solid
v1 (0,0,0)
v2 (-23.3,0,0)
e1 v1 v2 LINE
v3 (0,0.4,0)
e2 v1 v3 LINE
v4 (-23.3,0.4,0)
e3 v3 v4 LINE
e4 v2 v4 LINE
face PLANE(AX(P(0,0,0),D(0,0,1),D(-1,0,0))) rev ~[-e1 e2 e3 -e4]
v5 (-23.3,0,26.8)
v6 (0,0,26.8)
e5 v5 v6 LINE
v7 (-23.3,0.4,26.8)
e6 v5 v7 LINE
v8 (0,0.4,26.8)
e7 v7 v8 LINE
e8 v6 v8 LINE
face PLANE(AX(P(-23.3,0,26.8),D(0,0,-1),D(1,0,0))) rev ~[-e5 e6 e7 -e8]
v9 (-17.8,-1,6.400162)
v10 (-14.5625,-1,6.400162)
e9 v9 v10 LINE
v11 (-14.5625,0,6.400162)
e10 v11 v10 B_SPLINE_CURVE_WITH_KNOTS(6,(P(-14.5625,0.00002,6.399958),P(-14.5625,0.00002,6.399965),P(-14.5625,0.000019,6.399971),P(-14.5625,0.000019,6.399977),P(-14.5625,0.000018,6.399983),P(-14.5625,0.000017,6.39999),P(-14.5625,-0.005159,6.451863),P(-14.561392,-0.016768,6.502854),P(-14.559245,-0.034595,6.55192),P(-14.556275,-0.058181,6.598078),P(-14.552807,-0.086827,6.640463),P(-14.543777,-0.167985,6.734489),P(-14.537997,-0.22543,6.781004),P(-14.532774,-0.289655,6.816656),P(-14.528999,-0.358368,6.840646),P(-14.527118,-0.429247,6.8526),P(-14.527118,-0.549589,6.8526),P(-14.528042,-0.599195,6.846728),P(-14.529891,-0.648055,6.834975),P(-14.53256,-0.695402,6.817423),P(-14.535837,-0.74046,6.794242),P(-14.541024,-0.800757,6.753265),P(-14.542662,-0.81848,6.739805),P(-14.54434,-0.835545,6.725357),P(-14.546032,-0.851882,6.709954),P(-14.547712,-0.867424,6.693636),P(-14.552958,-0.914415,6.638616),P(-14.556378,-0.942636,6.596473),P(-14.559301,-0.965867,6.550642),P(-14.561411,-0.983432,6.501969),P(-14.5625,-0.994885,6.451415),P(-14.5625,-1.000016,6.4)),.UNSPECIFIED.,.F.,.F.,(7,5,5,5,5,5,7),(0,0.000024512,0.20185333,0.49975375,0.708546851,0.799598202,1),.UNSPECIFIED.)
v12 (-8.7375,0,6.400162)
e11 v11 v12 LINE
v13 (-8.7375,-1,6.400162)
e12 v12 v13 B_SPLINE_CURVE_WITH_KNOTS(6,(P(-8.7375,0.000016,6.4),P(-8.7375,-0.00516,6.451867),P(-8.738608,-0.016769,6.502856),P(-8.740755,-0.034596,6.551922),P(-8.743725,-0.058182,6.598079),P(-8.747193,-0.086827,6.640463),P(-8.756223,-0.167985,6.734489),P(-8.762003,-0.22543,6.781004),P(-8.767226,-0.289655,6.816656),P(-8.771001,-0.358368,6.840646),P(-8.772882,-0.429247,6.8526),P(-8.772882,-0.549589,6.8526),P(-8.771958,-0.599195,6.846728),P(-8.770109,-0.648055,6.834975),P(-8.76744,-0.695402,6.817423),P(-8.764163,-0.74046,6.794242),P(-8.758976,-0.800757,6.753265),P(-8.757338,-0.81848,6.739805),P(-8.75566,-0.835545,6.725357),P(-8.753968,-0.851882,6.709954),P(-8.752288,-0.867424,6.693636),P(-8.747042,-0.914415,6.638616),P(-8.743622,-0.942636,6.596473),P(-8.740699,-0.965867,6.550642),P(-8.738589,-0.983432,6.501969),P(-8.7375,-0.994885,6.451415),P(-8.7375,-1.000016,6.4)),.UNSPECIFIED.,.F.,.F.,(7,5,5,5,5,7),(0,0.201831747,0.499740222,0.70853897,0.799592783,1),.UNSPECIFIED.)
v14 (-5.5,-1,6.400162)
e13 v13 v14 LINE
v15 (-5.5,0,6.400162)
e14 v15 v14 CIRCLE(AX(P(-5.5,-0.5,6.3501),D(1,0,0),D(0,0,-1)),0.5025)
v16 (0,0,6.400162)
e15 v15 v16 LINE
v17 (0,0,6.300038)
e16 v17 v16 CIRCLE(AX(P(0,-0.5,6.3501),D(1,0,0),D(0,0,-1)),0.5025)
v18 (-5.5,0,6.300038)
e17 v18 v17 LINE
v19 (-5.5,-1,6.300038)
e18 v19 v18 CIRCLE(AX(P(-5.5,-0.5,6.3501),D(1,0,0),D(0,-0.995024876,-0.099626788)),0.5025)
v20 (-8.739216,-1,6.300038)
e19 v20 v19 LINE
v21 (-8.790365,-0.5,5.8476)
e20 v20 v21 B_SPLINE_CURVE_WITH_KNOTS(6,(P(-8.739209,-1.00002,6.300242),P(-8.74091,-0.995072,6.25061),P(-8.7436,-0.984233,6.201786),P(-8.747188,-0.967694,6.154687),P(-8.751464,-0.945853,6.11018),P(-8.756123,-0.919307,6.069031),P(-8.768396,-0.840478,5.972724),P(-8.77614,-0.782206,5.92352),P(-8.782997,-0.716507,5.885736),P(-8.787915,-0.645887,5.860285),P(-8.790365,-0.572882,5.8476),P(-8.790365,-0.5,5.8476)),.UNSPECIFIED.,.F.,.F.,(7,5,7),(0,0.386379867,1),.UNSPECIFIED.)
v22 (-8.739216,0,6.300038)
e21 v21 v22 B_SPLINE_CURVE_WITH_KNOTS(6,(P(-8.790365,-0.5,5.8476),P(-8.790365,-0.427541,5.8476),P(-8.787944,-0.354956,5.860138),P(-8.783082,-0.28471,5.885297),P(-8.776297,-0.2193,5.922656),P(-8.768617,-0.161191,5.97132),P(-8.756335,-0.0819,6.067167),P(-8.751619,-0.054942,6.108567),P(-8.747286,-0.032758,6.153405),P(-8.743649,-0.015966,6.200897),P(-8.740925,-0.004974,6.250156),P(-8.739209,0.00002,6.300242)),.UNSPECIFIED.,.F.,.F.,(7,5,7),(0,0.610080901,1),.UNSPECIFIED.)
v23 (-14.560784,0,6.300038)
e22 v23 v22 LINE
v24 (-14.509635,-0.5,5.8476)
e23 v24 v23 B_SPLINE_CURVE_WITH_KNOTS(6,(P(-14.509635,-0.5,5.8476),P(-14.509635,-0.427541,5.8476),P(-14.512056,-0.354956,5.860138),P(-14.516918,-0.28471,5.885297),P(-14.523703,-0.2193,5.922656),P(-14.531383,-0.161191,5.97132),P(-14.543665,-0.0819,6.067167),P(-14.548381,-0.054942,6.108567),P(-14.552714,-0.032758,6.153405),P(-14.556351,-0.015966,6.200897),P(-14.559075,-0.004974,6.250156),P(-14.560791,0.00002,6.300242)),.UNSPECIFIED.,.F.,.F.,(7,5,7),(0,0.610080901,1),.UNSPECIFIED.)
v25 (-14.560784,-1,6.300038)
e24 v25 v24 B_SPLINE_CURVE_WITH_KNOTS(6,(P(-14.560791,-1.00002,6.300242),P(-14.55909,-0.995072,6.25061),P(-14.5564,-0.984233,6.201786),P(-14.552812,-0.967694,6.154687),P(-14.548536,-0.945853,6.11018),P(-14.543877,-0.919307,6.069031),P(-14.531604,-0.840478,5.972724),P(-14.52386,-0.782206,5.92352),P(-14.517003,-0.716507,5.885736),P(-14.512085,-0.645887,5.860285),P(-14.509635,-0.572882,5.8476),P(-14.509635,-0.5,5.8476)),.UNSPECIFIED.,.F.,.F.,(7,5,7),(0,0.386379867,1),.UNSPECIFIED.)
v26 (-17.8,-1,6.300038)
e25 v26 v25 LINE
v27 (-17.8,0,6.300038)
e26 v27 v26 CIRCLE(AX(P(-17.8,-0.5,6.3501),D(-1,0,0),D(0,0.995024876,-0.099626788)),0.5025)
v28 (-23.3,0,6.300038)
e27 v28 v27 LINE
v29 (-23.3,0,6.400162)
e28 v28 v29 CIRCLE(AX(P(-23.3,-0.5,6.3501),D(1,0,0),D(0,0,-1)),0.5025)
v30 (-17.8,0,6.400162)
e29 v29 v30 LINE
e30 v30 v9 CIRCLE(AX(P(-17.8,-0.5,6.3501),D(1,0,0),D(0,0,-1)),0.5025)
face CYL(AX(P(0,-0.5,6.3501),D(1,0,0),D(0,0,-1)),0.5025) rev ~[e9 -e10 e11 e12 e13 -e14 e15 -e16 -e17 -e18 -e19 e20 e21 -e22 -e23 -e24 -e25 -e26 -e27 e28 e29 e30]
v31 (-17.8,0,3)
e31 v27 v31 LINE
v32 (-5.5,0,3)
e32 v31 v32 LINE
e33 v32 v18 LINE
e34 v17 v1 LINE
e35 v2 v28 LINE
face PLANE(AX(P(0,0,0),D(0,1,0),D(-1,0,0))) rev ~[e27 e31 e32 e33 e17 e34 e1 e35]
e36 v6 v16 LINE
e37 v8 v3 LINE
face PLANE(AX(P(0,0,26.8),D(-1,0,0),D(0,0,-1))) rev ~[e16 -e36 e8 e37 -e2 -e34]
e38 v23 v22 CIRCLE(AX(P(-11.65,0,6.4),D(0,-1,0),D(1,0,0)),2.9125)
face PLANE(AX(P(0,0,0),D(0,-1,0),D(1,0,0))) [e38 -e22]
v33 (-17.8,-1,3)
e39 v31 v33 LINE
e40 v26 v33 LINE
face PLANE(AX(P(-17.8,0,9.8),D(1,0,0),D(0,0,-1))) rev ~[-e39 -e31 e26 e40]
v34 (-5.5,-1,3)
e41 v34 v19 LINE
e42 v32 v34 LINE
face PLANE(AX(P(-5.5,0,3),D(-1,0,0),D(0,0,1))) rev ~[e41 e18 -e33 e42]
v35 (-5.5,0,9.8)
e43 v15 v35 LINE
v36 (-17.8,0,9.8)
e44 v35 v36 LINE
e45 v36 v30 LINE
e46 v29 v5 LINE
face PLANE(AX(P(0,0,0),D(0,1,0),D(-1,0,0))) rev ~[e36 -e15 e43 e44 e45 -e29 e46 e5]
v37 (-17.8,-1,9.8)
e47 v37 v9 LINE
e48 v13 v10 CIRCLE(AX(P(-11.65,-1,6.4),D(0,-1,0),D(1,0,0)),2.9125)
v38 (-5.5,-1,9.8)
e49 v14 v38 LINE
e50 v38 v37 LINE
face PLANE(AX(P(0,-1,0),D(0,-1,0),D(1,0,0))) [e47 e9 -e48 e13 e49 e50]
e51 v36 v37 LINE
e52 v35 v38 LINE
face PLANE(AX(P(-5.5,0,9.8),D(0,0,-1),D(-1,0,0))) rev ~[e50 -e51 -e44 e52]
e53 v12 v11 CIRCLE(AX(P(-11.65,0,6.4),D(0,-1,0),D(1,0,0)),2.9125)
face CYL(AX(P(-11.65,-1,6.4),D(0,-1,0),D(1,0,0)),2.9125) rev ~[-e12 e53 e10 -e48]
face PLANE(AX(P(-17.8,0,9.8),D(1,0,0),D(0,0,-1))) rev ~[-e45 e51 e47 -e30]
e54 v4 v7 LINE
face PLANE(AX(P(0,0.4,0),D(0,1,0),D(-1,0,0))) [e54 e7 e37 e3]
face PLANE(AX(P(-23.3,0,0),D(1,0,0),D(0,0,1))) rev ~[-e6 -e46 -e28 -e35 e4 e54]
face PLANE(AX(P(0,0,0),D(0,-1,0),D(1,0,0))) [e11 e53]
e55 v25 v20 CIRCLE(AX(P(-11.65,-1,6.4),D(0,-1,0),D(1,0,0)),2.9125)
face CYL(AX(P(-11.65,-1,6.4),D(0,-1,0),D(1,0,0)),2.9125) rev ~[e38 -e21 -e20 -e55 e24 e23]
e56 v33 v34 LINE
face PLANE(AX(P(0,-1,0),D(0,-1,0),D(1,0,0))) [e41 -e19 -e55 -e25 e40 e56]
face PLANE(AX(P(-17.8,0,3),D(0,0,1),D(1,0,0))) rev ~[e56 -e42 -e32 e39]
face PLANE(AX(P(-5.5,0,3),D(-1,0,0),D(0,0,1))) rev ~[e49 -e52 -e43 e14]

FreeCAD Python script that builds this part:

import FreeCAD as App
import Part
import Sketcher

V = App.Vector
Q = App.Units.Quantity


def add_polygon(sketch, points):
    """Adds a closed chain of lines whose ends are joined by coincident constraints."""
    first, n = sketch.GeometryCount, len(points)
    for a, b in zip(points, points[1:] + points[:1]):
        sketch.addGeometry(Part.LineSegment(App.Vector(*a, 0), App.Vector(*b, 0)), False)
    for i in range(n):
        sketch.addConstraint(Sketcher.Constraint("Coincident", first + i, 2, first + (i + 1) % n, 1))

doc = App.newDocument("Part")
body = doc.addObject("PartDesign::Body", "Body")

# Sketch on XZ plane
sketch1 = body.newObject("Sketcher::SketchObject", "Sketch")
sketch1.AttachmentSupport = (doc.getObject("XZ_Plane"), [""])
sketch1.MapMode = "FlatFace"
add_polygon(sketch1, [(0, 27), (0, 0), (-23, 0), (-23, 27)])  # lines 0-3
sketch1.addConstraint([
    Sketcher.Constraint("Vertical", 0),
    Sketcher.Constraint("Horizontal", 1),
    Sketcher.Constraint("Vertical", 2),
    Sketcher.Constraint("Horizontal", 3),
    Sketcher.Constraint("Coincident", 0, 2, -1, 1),
    Sketcher.Constraint("DistanceX", 1, 2, 1, 1, Q("23.3 mm")),
    Sketcher.Constraint("DistanceY", 0, 2, 0, 1, Q("26.8 mm")),
])
pad1 = body.newObject("PartDesign::Pad", "Pad")
pad1.Profile = sketch1
pad1.Length = 0.4
pad1.Reversed = True

# Sketch on XZ plane
sketch2 = body.newObject("Sketcher::SketchObject", "Sketch001")
sketch2.AttachmentSupport = (doc.getObject("XZ_Plane"), [""])
sketch2.MapMode = "FlatFace"
add_polygon(sketch2, [(-18, 10), (-18, 3), (-6, 3), (-6, 10)])  # lines 0-3
sketch2.addConstraint([
    Sketcher.Constraint("Vertical", 0),
    Sketcher.Constraint("Horizontal", 1),
    Sketcher.Constraint("Vertical", 2),
    Sketcher.Constraint("Horizontal", 3),
    Sketcher.Constraint("DistanceY", -1, 1, 0, 2, Q("3 mm")),
    Sketcher.Constraint("DistanceX", 1, 2, -1, 1, Q("5.5 mm")),
    Sketcher.Constraint("DistanceX", 1, 1, 1, 2, Q("12.3 mm")),
    Sketcher.Constraint("DistanceY", 0, 2, 0, 1, Q("6.8 mm")),
])
pad2 = body.newObject("PartDesign::Pad", "Pad001")
pad2.Profile = sketch2
pad2.Length = 1

# Sketch on XZ plane
sketch3 = body.newObject("Sketcher::SketchObject", "Sketch002")
sketch3.AttachmentSupport = (doc.getObject("XZ_Plane"), [""])
sketch3.MapMode = "FlatFace"
sketch3.AttachmentOffset = App.Placement(V(0, 0, 1), App.Rotation())
sketch3.addGeometry(Part.Circle(V(-11.7, 6.4, 0), V(0, 0, 1), 2.9), False)
sketch3.addConstraint([
    Sketcher.Constraint("Diameter", 0, Q("5.825 mm")),
    Sketcher.Constraint("DistanceY", -1, 1, 0, 3, Q("6.4 mm")),
    Sketcher.Constraint("DistanceX", 0, 3, -1, 1, Q("11.65 mm")),
])
pocket1 = body.newObject("PartDesign::Pocket", "Pocket")
pocket1.Profile = sketch3
pocket1.Length = 1

# Sketch on YZ plane
sketch4 = body.newObject("Sketcher::SketchObject", "Sketch003")
sketch4.AttachmentSupport = (doc.getObject("YZ_Plane"), [""])
sketch4.MapMode = "FlatFace"
sketch4.addGeometry(Part.Circle(V(-0.5, 6.4, 0), V(0, 0, 1), 0.5), False)
sketch4.addConstraint([
    Sketcher.Constraint("Diameter", 0, Q("1.005 mm")),
    Sketcher.Constraint("DistanceX", 0, 3, -1, 1, Q("0.5 mm")),
    Sketcher.Constraint("DistanceY", -1, 1, 0, 3, Q("6.35 mm")),
])
pocket2 = body.newObject("PartDesign::Pocket", "Pocket001")
pocket2.Profile = sketch4
pocket2.Type = "ThroughAll"

doc.recompute()
